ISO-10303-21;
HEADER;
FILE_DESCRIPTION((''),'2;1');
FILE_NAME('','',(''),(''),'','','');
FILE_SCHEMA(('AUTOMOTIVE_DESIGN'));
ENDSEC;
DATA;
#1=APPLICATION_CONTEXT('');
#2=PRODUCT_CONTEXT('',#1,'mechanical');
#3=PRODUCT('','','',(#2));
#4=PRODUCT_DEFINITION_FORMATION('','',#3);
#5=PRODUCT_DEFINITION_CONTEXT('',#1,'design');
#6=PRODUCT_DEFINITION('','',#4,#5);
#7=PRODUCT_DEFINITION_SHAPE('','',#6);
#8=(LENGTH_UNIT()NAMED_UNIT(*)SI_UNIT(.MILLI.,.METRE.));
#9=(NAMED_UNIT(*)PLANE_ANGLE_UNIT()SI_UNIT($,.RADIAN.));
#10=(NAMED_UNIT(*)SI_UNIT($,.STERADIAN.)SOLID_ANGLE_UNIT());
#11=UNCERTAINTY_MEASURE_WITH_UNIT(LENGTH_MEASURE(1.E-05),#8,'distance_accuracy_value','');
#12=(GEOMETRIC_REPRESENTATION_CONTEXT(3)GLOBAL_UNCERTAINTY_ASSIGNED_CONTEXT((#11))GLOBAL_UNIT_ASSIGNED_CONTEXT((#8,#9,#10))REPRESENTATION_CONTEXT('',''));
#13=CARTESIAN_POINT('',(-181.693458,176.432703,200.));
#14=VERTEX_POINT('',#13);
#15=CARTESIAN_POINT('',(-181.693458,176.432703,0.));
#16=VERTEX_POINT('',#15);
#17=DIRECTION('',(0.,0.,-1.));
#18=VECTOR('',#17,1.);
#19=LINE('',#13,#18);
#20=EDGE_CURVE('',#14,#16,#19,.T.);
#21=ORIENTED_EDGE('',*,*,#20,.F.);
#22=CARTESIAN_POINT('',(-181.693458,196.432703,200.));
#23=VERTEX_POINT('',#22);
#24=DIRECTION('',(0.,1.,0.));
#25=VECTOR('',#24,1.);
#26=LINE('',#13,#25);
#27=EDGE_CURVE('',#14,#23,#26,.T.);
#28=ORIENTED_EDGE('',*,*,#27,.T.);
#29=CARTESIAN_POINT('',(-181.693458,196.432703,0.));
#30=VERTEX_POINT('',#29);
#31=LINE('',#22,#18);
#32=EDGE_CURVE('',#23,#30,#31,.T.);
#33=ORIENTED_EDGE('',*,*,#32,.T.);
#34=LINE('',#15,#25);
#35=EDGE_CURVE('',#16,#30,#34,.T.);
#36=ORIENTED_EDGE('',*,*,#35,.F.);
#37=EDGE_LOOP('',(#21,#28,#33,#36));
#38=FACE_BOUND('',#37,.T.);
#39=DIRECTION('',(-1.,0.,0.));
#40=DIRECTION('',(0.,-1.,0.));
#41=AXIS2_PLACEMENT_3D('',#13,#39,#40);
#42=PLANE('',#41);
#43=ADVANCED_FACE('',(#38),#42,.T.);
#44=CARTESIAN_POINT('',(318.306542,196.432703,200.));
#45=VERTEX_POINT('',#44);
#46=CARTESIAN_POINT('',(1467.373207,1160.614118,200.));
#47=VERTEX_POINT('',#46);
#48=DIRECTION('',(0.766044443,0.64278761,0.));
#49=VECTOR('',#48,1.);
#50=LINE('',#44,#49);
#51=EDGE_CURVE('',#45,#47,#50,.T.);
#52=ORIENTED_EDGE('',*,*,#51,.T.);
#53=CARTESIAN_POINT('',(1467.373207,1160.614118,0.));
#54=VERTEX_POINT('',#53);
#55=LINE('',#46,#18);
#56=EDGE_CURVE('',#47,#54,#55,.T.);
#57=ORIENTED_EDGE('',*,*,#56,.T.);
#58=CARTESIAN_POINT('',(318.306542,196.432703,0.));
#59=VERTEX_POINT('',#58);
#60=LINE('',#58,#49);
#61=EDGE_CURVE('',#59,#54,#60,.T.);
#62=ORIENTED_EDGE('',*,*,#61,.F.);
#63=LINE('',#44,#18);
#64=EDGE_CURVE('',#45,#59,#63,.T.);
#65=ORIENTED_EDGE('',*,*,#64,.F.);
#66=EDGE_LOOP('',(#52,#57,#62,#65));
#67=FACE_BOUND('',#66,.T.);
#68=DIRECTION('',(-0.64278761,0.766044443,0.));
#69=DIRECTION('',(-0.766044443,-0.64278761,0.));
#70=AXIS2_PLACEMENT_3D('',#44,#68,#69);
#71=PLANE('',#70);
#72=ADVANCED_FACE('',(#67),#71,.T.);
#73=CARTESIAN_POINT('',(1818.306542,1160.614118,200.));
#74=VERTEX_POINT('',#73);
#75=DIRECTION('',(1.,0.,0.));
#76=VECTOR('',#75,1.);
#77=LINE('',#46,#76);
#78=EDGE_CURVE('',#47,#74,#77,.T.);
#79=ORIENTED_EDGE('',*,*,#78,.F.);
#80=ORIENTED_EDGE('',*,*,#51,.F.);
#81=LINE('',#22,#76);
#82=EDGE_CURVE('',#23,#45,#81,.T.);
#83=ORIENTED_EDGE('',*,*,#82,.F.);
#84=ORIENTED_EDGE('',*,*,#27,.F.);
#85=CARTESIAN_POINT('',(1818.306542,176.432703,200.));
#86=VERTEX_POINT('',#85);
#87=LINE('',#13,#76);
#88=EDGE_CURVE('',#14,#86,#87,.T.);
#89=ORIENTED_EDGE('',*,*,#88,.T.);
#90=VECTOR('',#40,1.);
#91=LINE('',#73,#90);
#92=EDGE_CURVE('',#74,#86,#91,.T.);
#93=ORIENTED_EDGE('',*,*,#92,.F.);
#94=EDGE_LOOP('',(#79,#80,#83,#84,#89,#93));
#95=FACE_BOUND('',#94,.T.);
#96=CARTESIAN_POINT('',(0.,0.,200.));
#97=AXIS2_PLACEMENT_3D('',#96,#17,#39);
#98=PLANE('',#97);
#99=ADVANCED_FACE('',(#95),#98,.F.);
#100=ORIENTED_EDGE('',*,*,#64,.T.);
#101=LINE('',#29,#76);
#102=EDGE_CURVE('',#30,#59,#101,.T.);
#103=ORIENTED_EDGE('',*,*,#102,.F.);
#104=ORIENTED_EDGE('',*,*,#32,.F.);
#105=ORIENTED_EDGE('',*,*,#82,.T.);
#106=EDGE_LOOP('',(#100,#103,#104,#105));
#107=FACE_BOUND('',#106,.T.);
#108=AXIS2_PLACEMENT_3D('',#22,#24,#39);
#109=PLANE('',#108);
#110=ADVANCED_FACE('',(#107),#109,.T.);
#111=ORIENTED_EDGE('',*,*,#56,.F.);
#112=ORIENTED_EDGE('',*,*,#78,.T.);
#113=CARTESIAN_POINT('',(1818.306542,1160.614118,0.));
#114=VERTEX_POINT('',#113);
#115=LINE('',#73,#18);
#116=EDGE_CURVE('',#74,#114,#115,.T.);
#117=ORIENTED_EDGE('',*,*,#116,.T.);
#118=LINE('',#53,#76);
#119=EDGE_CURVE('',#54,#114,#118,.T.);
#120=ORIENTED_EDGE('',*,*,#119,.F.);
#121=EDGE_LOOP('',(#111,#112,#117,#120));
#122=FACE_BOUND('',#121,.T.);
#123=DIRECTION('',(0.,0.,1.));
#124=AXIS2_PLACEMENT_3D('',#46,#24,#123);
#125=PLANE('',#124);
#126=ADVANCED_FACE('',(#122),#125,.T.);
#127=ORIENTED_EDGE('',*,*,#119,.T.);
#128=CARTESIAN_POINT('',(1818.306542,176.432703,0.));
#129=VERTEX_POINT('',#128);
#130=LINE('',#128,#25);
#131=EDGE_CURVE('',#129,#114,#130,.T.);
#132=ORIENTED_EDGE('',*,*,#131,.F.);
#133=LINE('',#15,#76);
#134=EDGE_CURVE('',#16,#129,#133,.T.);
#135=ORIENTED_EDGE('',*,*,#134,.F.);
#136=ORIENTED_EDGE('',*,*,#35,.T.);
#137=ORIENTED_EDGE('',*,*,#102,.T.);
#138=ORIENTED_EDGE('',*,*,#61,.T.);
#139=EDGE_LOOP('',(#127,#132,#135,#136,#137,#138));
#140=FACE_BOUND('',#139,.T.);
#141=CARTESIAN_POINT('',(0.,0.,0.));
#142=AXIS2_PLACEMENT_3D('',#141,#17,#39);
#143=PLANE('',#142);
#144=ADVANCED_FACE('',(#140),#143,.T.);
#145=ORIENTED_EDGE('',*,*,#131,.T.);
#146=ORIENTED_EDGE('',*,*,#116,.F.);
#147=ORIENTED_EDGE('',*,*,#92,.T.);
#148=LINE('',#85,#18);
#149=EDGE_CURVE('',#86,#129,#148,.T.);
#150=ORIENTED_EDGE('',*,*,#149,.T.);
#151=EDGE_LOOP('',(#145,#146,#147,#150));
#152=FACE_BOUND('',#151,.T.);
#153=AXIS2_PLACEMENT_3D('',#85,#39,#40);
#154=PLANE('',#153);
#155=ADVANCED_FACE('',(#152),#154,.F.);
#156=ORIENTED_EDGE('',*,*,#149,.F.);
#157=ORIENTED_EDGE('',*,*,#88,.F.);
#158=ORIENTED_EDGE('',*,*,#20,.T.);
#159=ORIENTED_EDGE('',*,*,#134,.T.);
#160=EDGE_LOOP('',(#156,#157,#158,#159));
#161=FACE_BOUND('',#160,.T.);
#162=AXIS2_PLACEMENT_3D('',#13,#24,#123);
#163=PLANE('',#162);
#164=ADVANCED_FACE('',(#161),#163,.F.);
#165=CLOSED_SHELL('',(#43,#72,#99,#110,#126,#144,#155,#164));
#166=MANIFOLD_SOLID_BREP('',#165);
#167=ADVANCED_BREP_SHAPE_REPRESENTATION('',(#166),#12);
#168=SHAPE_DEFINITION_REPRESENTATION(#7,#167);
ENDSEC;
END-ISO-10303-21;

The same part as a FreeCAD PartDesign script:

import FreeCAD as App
import Part
import Sketcher
Q = App.Units.Quantity


def add_polygon(sketch, points):
    """Adds a closed chain of lines whose ends are joined by coincident constraints."""
    first, n = sketch.GeometryCount, len(points)
    for a, b in zip(points, points[1:] + points[:1]):
        sketch.addGeometry(Part.LineSegment(App.Vector(*a, 0), App.Vector(*b, 0)), False)
    for i in range(n):
        sketch.addConstraint(Sketcher.Constraint("Coincident", first + i, 2, first + (i + 1) % n, 1))

doc = App.newDocument("Part")
body = doc.addObject("PartDesign::Body", "Body")

sketch1 = body.newObject("Sketcher::SketchObject", "Sketch")
sketch1.AttachmentSupport = (doc.getObject("XY_Plane"), [""])
sketch1.MapMode = "FlatFace"
add_polygon(sketch1, [(1467, 1161), (318, 196), (-182, 196), (-182, 176), (1818, 176), (1818, 1161)])
sketch1.addConstraint(Sketcher.Constraint("Horizontal", 1))
sketch1.addConstraint(Sketcher.Constraint("Vertical", 2))
sketch1.addConstraint(Sketcher.Constraint("Horizontal", 3))
sketch1.addConstraint(Sketcher.Constraint("Vertical", 4))
sketch1.addConstraint(Sketcher.Constraint("Horizontal", 5))
sketch1.addConstraint(Sketcher.Constraint("DistanceX", 1, 2, 1, 1, 500.0))
sketch1.addConstraint(Sketcher.Constraint("DistanceX", 3, 1, 3, 2, 2000.0))
sketch1.addConstraint(Sketcher.Constraint("DistanceY", 2, 2, 2, 1, 20.0))
sketch1.addConstraint(Sketcher.Constraint("Angle", 0, Q("-140 deg")))
sketch1.addConstraint(Sketcher.Constraint("Distance", 0, 1500.0))
sketch1.addConstraint(Sketcher.Constraint("DistanceX", -1, 1, 0, 2, 318.306542))
sketch1.addConstraint(Sketcher.Constraint("DistanceY", -1, 1, 0, 2, 196.432703))
pad1 = body.newObject("PartDesign::Pad", "Pad")
pad1.Profile = sketch1
pad1.Length = 200

doc.recompute()
